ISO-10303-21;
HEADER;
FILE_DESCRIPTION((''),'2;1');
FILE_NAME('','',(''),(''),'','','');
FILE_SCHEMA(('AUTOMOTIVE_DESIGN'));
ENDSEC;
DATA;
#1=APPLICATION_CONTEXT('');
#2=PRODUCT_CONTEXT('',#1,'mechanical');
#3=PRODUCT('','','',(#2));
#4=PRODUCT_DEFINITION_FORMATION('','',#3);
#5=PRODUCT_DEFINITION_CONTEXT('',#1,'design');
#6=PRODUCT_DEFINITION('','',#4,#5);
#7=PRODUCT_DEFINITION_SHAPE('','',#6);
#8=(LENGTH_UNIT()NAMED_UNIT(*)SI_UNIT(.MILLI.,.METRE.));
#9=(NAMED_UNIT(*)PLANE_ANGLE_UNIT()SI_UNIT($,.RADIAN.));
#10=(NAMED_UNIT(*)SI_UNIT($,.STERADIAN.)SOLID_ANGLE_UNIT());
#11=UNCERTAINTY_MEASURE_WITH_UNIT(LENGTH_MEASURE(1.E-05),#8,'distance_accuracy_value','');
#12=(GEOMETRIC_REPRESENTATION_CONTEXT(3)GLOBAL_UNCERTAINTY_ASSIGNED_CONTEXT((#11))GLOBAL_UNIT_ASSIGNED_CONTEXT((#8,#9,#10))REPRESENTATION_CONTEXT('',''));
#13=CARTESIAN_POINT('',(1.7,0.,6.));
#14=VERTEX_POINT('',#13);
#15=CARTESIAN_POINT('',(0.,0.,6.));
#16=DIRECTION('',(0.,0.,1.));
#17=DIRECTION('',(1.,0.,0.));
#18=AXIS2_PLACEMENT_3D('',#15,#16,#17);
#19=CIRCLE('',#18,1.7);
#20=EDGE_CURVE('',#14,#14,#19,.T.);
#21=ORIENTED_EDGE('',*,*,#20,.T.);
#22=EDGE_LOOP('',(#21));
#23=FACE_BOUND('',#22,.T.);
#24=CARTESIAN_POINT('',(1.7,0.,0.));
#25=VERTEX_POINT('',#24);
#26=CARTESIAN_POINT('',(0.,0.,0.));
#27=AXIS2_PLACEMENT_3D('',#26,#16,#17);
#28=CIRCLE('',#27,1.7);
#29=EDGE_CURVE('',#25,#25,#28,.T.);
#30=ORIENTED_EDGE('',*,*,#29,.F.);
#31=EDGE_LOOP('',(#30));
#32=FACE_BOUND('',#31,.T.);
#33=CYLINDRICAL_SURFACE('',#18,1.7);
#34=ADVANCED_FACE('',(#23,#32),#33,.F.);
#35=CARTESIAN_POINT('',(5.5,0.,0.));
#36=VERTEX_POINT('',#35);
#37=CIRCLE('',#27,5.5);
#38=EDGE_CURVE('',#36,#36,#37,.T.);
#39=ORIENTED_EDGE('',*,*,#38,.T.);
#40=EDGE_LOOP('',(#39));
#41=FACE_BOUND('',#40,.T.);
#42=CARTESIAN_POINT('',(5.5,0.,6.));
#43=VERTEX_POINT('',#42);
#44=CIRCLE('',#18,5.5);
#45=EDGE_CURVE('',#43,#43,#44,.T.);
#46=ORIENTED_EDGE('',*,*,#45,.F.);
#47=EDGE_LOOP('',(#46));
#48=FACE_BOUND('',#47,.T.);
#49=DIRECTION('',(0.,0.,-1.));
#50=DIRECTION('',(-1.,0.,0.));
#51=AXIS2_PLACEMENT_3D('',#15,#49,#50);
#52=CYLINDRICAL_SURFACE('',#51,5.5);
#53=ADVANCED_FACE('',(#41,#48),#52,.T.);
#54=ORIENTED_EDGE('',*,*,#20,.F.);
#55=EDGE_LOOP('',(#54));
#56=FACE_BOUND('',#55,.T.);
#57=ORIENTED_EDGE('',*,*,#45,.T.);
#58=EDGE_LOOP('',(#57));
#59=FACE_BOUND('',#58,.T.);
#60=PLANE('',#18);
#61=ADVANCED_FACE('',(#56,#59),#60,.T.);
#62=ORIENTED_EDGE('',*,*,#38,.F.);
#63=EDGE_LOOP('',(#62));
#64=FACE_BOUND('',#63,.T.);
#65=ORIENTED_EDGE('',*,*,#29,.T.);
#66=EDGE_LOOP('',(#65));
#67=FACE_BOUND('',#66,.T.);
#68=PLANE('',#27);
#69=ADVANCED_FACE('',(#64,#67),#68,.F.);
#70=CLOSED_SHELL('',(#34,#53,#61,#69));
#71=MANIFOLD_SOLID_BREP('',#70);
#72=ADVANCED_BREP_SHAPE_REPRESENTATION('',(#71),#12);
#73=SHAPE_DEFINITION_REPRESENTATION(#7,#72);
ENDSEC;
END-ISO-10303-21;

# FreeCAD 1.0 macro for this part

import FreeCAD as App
import Part
import Sketcher
Q = App.Units.Quantity

doc = App.newDocument("Part")
body = doc.addObject("PartDesign::Body", "Body")

# Sketch on XY plane
sketch1 = body.newObject("Sketcher::SketchObject", "Sketch")
sketch1.AttachmentSupport = (doc.getObject("XY_Plane"), [""])
sketch1.MapMode = "FlatFace"
sketch1.addGeometry(Part.Circle(App.Vector(0, 0, 0), App.Vector(0, 0, 1), 5.5), False)
sketch1.addConstraint(Sketcher.Constraint("Coincident", 0, 3, -1, 1))
sketch1.addConstraint(Sketcher.Constraint("Diameter", 0, Q("11 mm")))
pad1 = body.newObject("PartDesign::Pad", "Pad")
pad1.Profile = sketch1
pad1.Length = 6

# Sketch on XY plane
sketch2 = body.newObject("Sketcher::SketchObject", "Sketch001")
sketch2.AttachmentSupport = (doc.getObject("XY_Plane"), [""])
sketch2.MapMode = "FlatFace"
sketch2.AttachmentOffset = App.Placement(App.Vector(0, 0, 6), App.Rotation())
sketch2.addGeometry(Part.Circle(App.Vector(0, 0, 0), App.Vector(0, 0, 1), 1.7), False)
sketch2.addConstraint(Sketcher.Constraint("Coincident", 0, 3, -1, 1))
sketch2.addConstraint(Sketcher.Constraint("Diameter", 0, Q("3.4 mm")))
doc.recompute()
hole = body.newObject("PartDesign::Hole", "Hole")
hole.Profile = sketch2
hole.ThreadType = "None"
hole.Diameter = 3.4
hole.DepthType = "ThroughAll"

doc.recompute()
